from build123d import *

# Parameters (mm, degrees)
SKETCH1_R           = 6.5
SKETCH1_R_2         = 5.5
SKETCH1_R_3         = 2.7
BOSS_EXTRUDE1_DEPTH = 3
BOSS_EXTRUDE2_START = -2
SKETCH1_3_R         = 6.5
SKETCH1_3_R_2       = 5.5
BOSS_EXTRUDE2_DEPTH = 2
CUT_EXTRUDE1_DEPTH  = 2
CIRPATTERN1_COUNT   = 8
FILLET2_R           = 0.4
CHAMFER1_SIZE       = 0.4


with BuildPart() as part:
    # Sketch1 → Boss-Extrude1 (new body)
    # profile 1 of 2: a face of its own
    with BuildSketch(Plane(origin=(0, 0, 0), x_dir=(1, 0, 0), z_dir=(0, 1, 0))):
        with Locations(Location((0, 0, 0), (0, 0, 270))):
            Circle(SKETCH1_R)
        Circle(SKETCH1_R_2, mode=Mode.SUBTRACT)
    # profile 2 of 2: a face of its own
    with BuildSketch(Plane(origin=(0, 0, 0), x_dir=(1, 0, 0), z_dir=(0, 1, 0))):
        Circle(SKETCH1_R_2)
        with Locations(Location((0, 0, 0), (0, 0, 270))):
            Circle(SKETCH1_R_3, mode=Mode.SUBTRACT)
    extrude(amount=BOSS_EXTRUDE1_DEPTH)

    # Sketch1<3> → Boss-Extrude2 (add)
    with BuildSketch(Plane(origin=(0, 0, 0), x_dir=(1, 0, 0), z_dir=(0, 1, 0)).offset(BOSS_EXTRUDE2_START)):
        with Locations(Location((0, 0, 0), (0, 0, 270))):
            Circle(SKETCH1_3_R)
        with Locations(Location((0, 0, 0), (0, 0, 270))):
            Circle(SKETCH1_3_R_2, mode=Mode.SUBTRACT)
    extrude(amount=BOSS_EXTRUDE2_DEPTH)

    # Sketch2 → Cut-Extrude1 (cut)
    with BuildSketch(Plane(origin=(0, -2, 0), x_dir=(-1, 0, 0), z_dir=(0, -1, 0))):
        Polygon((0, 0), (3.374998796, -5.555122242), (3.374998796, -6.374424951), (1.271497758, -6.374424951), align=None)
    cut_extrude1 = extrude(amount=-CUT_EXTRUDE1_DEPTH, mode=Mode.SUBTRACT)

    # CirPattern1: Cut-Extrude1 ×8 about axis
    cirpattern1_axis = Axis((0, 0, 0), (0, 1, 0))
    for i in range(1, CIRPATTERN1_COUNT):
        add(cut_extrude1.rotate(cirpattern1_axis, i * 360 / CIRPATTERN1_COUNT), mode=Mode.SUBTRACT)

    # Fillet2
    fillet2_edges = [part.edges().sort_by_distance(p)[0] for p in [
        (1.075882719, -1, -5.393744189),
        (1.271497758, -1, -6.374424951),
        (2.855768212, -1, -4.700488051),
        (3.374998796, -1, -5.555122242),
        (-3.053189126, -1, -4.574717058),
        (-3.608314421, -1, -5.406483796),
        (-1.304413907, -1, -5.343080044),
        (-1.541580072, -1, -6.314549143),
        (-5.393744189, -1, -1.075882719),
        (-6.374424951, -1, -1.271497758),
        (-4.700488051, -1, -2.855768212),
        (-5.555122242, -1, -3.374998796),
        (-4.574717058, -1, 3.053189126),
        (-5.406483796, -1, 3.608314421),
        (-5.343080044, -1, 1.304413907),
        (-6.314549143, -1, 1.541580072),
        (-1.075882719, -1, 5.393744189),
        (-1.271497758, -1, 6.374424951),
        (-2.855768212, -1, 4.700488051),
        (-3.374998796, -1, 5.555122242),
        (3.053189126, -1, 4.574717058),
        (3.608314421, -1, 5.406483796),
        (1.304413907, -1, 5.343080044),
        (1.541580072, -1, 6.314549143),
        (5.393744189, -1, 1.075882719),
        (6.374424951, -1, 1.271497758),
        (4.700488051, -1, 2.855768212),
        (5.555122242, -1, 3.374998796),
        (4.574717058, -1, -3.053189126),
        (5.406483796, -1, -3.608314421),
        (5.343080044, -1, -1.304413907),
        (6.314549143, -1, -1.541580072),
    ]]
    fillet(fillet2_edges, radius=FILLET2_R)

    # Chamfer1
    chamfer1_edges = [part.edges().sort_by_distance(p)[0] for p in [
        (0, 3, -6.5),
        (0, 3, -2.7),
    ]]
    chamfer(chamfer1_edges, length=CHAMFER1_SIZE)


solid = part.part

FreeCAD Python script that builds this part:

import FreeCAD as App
import Part
import Sketcher
from FreeCAD import Vector
Q = App.Units.Quantity


def edges_at(feature, points):
    """Names of the edges that pass closest to the given points."""
    edges = feature.Shape.Edges
    near = lambda p: min(range(len(edges)), key=lambda i: edges[i].distToShape(Part.Vertex(*p))[0])
    return sorted({f"Edge{near(p) + 1}" for p in points})


def add_polygon(sketch, points):
    """Adds a closed chain of lines whose ends are joined by coincident constraints."""
    first, n = sketch.GeometryCount, len(points)
    for a, b in zip(points, points[1:] + points[:1]):
        sketch.addGeometry(Part.LineSegment(App.Vector(*a, 0), App.Vector(*b, 0)), False)
    for i in range(n):
        sketch.addConstraint(Sketcher.Constraint("Coincident", first + i, 2, first + (i + 1) % n, 1))

doc = App.newDocument("Part")
body = doc.addObject("PartDesign::Body", "Body")

sketch1 = doc.addObject("Sketcher::SketchObject", "Sketch")
body.addObject(sketch1)
sketch1.AttachmentSupport = (doc.XZ_Plane, [""])
sketch1.MapMode = "FlatFace"
sketch1.addGeometry([
    Part.Circle(Vector(0, 0, 0), Vector(0, 0, 1), 6.5),
    Part.Circle(Vector(0, 0, 0), Vector(0, 0, 1), 2.7),
], False)
sketch1.addConstraint([
    Sketcher.Constraint("Coincident", 0, 3, -1, 1),
    Sketcher.Constraint("Coincident", 1, 3, -1, 1),
    Sketcher.Constraint("Diameter", 0, Q("13 mm")),
    Sketcher.Constraint("Diameter", 1, Q("5.4 mm")),
])
pad1 = doc.addObject("PartDesign::Pad", "Pad")
body.addObject(pad1)
pad1.Profile = sketch1
pad1.Length = 3
pad1.Reversed = True

sketch2 = doc.addObject("Sketcher::SketchObject", "Sketch001")
body.addObject(sketch2)
sketch2.AttachmentSupport = (doc.XZ_Plane, [""])
sketch2.MapMode = "FlatFace"
sketch2.AttachmentOffset = App.Placement(Vector(0, 0, 2), App.Rotation())
sketch2.addGeometry([
    Part.Circle(Vector(0, 0, 0), Vector(0, 0, 1), 6),
    Part.Circle(Vector(0, 0, 0), Vector(0, 0, 1), 6),
], False)
sketch2.addConstraint([
    Sketcher.Constraint("Coincident", 0, 3, -1, 1),
    Sketcher.Constraint("Coincident", 1, 3, -1, 1),
    Sketcher.Constraint("Diameter", 0, Q("13 mm")),
    Sketcher.Constraint("Diameter", 1, Q("11 mm")),
])
pad2 = doc.addObject("PartDesign::Pad", "Pad001")
body.addObject(pad2)
pad2.Profile = sketch2
pad2.Length = 2
pad2.Reversed = True

sketch3 = doc.addObject("Sketcher::SketchObject", "Sketch002")
body.addObject(sketch3)
sketch3.AttachmentSupport = (doc.XZ_Plane, [""])
sketch3.MapMode = "FlatFace"
sketch3.AttachmentOffset = App.Placement(Vector(0, 0, 2), App.Rotation())
add_polygon(sketch3, [(-3.4, 5.6), (0, 0), (-1.3, 6.4), (-3.4, 6.4)])
sketch3.addConstraint([
    Sketcher.Constraint("Horizontal", 2),
    Sketcher.Constraint("Vertical", 3),
    Sketcher.Constraint("Coincident", 0, 2, -1, 1),
    Sketcher.Constraint("Equal", 0, 1),
    Sketcher.Constraint("Distance", 0, Q("6.5 mm")),
    Sketcher.Constraint("DistanceX", 2, 2, 2, 1, Q("2.103501 mm")),
    Sketcher.Constraint("DistanceX", 2, 2, -1, 1, Q("3.374999 mm")),
])
pocket1 = doc.addObject("PartDesign::Pocket", "Pocket")
body.addObject(pocket1)
pocket1.Profile = sketch3
pocket1.Length = 2
doc.recompute()

polarpattern = doc.addObject("PartDesign::PolarPattern", "PolarPattern")
body.addObject(polarpattern)
polarpattern.Originals = [pocket1]
polarpattern.Axis = (doc.Y_Axis, [""])
polarpattern.Angle = 360
polarpattern.Occurrences = 8
body.Tip = polarpattern
doc.recompute()

fillet = doc.addObject("PartDesign::Fillet", "Fillet")
body.addObject(fillet)
fillet.Base = (polarpattern, edges_at(polarpattern, [
    (1.076, -1, -5.394),
    (1.271, -1, -6.374),
    (2.856, -1, -4.7),
    (3.375, -1, -5.555),
    (-3.053, -1, -4.575),
    (-3.608, -1, -5.406),
    (-1.304, -1, -5.343),
    (-1.542, -1, -6.315),
    (-5.394, -1, -1.076),
    (-6.374, -1, -1.271),
    (-4.7, -1, -2.856),
    (-5.555, -1, -3.375),
    (-4.575, -1, 3.053),
    (-5.406, -1, 3.608),
    (-5.343, -1, 1.304),
    (-6.315, -1, 1.542),
    (-1.076, -1, 5.394),
    (-1.271, -1, 6.374),
    (-2.856, -1, 4.7),
    (-3.375, -1, 5.555),
    (3.053, -1, 4.575),
    (3.608, -1, 5.406),
    (1.304, -1, 5.343),
    (1.542, -1, 6.315),
    (5.394, -1, 1.076),
    (6.374, -1, 1.271),
    (4.7, -1, 2.856),
    (5.555, -1, 3.375),
    (4.575, -1, -3.053),
    (5.406, -1, -3.608),
    (5.343, -1, -1.304),
    (6.315, -1, -1.542),
]))
fillet.Radius = 0.4
doc.recompute()

chamfer = doc.addObject("PartDesign::Chamfer", "Chamfer")
body.addObject(chamfer)
chamfer.Base = (fillet, edges_at(fillet, [(0, 3, -6.5), (0, 3, -2.7)]))
chamfer.Size = 0.4

doc.recompute()
